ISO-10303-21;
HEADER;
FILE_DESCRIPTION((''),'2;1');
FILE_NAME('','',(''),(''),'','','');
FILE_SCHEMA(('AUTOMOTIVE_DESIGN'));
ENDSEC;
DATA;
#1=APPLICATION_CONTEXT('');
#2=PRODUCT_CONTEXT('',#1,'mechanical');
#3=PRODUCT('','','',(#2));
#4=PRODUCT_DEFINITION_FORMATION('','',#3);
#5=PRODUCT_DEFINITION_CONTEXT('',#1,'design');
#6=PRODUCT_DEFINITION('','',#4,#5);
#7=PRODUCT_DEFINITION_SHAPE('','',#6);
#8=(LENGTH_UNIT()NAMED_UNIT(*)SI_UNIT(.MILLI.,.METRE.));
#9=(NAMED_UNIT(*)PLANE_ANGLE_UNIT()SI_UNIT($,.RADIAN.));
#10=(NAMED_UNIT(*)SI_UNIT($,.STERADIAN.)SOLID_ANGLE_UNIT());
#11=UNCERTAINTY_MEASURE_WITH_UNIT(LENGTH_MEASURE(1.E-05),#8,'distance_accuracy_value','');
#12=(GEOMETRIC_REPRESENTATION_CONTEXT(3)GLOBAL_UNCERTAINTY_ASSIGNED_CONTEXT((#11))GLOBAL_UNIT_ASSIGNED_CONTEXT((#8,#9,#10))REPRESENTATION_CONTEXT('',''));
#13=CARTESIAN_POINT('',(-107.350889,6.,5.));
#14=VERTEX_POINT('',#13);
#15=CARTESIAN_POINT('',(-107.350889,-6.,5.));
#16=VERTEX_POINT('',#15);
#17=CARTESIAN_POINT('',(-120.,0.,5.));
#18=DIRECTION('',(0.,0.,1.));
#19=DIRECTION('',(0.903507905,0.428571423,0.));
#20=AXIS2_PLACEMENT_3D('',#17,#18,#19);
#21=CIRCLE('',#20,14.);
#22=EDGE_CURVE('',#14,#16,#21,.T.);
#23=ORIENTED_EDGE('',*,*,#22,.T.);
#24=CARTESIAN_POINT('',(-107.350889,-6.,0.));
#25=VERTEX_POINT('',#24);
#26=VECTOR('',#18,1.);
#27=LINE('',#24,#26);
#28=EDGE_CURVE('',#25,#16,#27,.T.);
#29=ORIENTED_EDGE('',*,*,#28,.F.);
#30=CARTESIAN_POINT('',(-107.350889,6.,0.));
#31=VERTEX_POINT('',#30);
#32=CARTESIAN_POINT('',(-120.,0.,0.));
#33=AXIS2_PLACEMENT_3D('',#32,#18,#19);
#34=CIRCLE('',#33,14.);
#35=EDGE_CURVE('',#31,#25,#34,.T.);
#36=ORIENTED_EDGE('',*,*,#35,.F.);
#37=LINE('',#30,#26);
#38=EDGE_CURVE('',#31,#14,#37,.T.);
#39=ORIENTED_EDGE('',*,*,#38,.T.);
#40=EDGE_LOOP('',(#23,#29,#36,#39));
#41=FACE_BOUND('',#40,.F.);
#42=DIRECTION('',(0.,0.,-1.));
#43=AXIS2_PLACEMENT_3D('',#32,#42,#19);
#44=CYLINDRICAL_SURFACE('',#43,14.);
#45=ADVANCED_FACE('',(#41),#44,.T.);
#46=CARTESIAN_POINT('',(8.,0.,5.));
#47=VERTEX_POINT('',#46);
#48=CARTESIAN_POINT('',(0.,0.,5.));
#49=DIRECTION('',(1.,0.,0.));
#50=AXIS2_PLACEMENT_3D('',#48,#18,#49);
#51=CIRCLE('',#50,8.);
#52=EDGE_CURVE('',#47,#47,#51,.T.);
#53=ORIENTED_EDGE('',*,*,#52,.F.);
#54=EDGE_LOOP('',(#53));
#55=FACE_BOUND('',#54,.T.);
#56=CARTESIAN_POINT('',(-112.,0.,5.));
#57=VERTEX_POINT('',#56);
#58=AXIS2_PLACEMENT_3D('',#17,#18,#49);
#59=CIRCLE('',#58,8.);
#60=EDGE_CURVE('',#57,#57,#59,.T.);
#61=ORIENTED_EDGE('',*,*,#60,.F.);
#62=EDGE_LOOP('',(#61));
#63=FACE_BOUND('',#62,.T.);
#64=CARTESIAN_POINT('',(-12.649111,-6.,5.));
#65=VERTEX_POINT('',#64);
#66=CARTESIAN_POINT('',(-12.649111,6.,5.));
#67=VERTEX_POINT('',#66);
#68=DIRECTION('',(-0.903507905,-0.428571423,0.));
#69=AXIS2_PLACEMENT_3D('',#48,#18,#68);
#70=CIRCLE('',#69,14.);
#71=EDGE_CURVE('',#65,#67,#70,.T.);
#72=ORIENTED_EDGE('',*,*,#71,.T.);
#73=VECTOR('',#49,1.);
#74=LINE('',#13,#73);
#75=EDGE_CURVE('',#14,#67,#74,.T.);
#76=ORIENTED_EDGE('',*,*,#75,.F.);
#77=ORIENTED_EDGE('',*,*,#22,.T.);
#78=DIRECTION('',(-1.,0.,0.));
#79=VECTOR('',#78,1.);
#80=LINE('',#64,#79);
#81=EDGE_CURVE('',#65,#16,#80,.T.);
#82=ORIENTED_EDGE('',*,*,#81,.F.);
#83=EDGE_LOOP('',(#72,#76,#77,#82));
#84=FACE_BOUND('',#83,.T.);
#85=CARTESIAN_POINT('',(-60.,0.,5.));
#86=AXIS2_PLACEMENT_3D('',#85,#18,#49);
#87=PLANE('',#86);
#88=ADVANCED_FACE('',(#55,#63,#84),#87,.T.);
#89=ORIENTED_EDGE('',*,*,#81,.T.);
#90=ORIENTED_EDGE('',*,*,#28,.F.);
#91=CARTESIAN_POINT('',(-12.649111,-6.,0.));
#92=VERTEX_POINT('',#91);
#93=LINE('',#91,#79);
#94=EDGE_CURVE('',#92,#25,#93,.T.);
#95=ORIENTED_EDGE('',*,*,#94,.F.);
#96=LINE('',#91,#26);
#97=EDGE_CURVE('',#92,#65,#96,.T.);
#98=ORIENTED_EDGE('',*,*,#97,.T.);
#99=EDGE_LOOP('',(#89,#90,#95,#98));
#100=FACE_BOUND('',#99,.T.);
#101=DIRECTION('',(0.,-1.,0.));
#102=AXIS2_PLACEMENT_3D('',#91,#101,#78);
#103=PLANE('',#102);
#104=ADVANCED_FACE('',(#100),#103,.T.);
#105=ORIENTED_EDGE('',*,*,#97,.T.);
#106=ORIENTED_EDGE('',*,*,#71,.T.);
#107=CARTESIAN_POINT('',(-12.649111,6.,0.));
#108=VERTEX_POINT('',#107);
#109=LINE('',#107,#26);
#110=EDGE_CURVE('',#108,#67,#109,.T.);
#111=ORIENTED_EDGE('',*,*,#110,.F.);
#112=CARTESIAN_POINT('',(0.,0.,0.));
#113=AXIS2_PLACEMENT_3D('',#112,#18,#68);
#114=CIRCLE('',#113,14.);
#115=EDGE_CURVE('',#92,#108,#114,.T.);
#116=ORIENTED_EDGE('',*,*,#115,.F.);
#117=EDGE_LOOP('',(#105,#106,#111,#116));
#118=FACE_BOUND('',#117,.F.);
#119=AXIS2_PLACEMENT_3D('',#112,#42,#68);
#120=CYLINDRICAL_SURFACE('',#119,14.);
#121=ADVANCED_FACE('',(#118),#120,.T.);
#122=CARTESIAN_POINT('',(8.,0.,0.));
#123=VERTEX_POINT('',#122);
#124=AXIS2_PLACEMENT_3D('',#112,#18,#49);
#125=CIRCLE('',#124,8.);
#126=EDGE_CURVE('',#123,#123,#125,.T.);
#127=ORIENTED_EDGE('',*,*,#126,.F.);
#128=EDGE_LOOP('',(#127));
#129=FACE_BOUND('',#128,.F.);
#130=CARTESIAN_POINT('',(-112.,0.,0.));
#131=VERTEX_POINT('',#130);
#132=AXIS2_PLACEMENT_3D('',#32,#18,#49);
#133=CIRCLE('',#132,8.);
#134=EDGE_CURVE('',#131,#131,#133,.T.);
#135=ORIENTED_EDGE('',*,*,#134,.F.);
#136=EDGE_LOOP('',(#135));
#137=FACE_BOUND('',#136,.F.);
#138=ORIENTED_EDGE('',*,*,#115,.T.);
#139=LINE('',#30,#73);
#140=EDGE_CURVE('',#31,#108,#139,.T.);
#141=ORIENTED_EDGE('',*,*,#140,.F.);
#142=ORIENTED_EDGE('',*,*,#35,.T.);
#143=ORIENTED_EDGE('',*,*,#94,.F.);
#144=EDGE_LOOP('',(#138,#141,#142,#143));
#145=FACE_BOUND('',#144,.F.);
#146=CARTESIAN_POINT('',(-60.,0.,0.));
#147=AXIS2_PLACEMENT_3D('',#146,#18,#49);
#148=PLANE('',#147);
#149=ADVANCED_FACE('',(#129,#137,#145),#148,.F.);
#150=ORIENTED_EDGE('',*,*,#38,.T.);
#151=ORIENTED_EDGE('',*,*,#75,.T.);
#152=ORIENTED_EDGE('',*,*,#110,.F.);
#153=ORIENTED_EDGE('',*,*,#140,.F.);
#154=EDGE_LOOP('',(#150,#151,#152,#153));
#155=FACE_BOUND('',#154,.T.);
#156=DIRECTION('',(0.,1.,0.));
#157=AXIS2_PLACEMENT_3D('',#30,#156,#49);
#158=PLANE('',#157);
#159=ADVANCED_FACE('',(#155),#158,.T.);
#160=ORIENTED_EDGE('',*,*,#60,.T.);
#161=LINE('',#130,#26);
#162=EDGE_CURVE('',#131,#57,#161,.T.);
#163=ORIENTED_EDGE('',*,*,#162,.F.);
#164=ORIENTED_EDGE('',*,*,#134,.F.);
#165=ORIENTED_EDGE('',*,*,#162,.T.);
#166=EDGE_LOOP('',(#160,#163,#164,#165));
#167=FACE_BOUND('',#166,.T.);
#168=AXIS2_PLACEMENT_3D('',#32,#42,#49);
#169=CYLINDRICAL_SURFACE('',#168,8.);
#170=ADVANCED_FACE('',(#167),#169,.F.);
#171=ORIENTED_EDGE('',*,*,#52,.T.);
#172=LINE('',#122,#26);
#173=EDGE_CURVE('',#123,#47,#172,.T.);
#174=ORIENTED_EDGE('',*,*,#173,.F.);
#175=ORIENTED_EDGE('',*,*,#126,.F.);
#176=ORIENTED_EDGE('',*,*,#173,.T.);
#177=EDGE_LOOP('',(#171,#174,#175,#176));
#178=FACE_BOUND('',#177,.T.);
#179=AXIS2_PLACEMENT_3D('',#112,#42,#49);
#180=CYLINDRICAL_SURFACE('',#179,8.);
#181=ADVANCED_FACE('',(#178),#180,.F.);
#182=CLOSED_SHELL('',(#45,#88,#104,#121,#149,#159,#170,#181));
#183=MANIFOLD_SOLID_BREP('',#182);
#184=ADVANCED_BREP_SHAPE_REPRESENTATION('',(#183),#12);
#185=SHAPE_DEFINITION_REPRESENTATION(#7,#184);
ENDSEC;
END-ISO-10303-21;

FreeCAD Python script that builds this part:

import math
import FreeCAD as App
import Part
import Sketcher

doc = App.newDocument("Part")
body = doc.addObject("PartDesign::Body", "Body")

# Sketch on XY plane
sketch1 = body.newObject("Sketcher::SketchObject", "Sketch")
sketch1.AttachmentSupport = (doc.getObject("XY_Plane"), [""])
sketch1.MapMode = "FlatFace"
sketch1.addGeometry(Part.ArcOfCircle(Part.Circle(App.Vector(0, 0, 0), App.Vector(0, 0, 1), 14), math.radians(-155), math.radians(155)), False)
sketch1.addGeometry(Part.LineSegment(App.Vector(-13, 6, 0), App.Vector(-107, 6, 0)), False)
sketch1.addGeometry(Part.ArcOfCircle(Part.Circle(App.Vector(-120, 0, 0), App.Vector(0, 0, 1), 14), math.radians(25), math.radians(335)), False)
sketch1.addGeometry(Part.LineSegment(App.Vector(-107, -6, 0), App.Vector(-13, -6, 0)), False)
sketch1.addGeometry(Part.Circle(App.Vector(-120, 0, 0), App.Vector(0, 0, 1), 8), False)
sketch1.addGeometry(Part.Circle(App.Vector(0, 0, 0), App.Vector(0, 0, 1), 8), False)
sketch1.addConstraint(Sketcher.Constraint("Coincident", 0, 2, 1, 1))
sketch1.addConstraint(Sketcher.Constraint("Coincident", 1, 2, 2, 1))
sketch1.addConstraint(Sketcher.Constraint("Coincident", 2, 2, 3, 1))
sketch1.addConstraint(Sketcher.Constraint("Coincident", 3, 2, 0, 1))
sketch1.addConstraint(Sketcher.Constraint("Horizontal", 1))
sketch1.addConstraint(Sketcher.Constraint("Horizontal", 3))
sketch1.addConstraint(Sketcher.Constraint("Coincident", 0, 3, -1, 1))
sketch1.addConstraint(Sketcher.Constraint("Coincident", 5, 3, -1, 1))
sketch1.addConstraint(Sketcher.Constraint("Coincident", 4, 3, 2, 3))
sketch1.addConstraint(Sketcher.Constraint("Equal", 0, 2))
sketch1.addConstraint(Sketcher.Constraint("Equal", 4, 5))
sketch1.addConstraint(Sketcher.Constraint("Symmetric", 1, 2, 2, 2, -1))
sketch1.addConstraint(Sketcher.Constraint("Diameter", 4, 16.0))
sketch1.addConstraint(Sketcher.Constraint("Radius", 0, 14.0))
sketch1.addConstraint(Sketcher.Constraint("DistanceX", 2, 3, -1, 1, 120.0))
sketch1.addConstraint(Sketcher.Constraint("DistanceY", -1, 1, 0, 2, 6.0))
pad1 = body.newObject("PartDesign::Pad", "Pad")
pad1.Profile = sketch1
pad1.Length = 5

doc.recompute()
